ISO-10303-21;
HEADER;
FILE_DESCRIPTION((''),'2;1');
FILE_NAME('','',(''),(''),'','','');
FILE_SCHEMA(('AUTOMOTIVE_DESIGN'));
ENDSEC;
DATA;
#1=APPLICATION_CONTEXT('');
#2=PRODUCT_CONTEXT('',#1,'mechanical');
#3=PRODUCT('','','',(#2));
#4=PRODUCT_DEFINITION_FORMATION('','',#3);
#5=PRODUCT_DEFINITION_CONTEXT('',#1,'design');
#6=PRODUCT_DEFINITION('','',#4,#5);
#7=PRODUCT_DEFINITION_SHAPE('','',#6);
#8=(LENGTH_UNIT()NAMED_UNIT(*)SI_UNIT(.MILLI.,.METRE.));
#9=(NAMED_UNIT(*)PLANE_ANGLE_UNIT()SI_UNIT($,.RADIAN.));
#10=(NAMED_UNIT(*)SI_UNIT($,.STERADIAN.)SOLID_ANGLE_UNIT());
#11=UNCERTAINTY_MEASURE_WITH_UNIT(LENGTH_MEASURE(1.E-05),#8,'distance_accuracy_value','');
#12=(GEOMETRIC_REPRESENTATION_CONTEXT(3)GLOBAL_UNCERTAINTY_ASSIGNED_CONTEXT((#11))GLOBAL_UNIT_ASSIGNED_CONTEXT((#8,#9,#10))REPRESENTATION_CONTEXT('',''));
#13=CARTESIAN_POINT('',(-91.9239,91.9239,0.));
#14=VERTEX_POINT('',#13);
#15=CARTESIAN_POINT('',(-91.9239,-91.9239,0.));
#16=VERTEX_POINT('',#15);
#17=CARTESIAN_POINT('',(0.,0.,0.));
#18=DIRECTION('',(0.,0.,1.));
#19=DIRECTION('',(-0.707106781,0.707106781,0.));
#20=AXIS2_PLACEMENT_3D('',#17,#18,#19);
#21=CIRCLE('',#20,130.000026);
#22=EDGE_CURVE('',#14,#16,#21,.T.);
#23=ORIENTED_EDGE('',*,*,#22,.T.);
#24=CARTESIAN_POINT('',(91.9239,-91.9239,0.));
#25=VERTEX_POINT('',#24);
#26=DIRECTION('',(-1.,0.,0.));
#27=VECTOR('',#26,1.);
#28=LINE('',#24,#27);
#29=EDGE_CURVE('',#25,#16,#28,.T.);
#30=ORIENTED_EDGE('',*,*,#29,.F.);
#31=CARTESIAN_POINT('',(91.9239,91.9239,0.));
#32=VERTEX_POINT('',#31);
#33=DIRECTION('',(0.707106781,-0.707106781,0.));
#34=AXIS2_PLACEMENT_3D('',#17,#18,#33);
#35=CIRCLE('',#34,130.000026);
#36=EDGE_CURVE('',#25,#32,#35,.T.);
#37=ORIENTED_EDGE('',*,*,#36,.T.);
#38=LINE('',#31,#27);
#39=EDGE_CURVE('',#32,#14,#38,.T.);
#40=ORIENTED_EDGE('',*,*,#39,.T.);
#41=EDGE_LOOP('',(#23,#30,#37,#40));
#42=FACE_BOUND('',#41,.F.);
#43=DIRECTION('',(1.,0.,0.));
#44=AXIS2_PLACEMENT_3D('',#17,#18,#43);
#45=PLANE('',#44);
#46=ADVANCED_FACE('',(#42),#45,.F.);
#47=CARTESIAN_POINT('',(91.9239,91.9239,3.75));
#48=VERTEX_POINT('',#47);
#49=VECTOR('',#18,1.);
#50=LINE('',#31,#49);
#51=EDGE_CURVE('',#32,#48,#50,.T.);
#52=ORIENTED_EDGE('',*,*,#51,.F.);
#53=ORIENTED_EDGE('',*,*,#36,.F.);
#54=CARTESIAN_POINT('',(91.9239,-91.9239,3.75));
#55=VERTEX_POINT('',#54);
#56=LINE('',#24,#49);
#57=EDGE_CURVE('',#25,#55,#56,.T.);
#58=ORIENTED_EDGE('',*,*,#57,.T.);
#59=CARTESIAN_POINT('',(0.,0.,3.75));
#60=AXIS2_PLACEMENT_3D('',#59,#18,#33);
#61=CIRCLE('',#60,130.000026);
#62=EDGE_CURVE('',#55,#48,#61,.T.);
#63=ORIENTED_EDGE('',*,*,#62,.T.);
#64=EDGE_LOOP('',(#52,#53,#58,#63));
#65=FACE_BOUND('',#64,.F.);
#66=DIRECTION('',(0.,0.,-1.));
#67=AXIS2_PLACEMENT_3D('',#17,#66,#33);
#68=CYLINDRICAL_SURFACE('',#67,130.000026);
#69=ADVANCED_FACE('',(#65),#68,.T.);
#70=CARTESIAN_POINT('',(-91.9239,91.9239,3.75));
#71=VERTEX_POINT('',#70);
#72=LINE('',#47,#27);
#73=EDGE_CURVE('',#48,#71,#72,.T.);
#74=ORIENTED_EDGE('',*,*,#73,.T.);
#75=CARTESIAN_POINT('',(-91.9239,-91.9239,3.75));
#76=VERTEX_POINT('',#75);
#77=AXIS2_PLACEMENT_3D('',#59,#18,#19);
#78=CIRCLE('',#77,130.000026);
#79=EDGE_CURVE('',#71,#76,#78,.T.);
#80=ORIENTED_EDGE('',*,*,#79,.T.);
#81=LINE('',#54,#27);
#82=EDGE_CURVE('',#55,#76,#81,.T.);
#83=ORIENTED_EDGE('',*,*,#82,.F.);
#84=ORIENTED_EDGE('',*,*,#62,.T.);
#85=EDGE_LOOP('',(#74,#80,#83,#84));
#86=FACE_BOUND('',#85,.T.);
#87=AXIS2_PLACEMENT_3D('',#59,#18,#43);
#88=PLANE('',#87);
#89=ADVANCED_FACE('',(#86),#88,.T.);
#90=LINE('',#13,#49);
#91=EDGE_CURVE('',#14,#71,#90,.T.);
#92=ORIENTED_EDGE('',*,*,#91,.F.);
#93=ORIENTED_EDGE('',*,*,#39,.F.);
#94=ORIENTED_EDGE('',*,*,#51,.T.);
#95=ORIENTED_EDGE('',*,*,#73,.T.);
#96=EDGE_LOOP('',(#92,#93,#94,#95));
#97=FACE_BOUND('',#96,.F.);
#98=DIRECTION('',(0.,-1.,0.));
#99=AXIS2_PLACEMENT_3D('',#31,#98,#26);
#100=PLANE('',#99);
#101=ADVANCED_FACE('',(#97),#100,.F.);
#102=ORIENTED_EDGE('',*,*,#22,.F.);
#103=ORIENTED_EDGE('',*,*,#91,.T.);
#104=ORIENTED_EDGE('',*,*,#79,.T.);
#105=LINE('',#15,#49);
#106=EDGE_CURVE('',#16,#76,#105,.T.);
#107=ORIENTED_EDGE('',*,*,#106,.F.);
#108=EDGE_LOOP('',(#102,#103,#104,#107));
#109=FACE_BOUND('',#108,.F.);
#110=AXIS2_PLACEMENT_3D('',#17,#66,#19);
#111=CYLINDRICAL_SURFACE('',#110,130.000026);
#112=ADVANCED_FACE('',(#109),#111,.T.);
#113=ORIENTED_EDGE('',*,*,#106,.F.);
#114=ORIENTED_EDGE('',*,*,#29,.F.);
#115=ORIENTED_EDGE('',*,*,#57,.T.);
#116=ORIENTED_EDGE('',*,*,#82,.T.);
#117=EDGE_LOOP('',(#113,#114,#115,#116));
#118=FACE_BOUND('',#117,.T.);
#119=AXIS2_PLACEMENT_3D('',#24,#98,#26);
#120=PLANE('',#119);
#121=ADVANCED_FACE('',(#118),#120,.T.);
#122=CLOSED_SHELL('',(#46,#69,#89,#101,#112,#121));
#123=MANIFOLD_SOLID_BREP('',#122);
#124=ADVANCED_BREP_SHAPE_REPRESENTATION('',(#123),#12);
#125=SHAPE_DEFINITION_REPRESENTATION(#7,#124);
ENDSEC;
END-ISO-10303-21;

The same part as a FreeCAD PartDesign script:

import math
import FreeCAD as App
import Part
import Sketcher

doc = App.newDocument("Part")
body = doc.addObject("PartDesign::Body", "Body")

sketch1 = doc.addObject("Sketcher::SketchObject", "Sketch")
body.addObject(sketch1)
sketch1.AttachmentSupport = (doc.XY_Plane, [""])
sketch1.MapMode = "FlatFace"
sketch1.addGeometry([
    Part.ArcOfCircle(Part.Circle(App.Vector(0, 0, 0), App.Vector(0, 0, 1), 130), math.radians(-45), math.radians(45)),
    Part.LineSegment(App.Vector(92, 92, 0), App.Vector(-92, 92, 0)),
    Part.ArcOfCircle(Part.Circle(App.Vector(0, 0, 0), App.Vector(0, 0, 1), 130), math.radians(135), math.radians(225)),
    Part.LineSegment(App.Vector(-92, -92, 0), App.Vector(92, -92, 0)),
], False)
sketch1.addConstraint([
    Sketcher.Constraint("Coincident", 0, 2, 1, 1),
    Sketcher.Constraint("Coincident", 1, 2, 2, 1),
    Sketcher.Constraint("Coincident", 2, 2, 3, 1),
    Sketcher.Constraint("Coincident", 3, 2, 0, 1),
    Sketcher.Constraint("Horizontal", 1),
    Sketcher.Constraint("Horizontal", 3),
    Sketcher.Constraint("Coincident", 0, 3, -1, 1),
    Sketcher.Constraint("Coincident", 2, 3, -1, 1),
    Sketcher.Constraint("Equal", 0, 2),
    Sketcher.Constraint("Vertical", 1, 2, 2, 2),
    Sketcher.Constraint("Radius", 0, 130.0),
    Sketcher.Constraint("DistanceX", 1, 2, 1, 1, 183.8478),
])
pad1 = doc.addObject("PartDesign::Pad", "Pad")
body.addObject(pad1)
pad1.Profile = sketch1
pad1.Length = 3.75

doc.recompute()
